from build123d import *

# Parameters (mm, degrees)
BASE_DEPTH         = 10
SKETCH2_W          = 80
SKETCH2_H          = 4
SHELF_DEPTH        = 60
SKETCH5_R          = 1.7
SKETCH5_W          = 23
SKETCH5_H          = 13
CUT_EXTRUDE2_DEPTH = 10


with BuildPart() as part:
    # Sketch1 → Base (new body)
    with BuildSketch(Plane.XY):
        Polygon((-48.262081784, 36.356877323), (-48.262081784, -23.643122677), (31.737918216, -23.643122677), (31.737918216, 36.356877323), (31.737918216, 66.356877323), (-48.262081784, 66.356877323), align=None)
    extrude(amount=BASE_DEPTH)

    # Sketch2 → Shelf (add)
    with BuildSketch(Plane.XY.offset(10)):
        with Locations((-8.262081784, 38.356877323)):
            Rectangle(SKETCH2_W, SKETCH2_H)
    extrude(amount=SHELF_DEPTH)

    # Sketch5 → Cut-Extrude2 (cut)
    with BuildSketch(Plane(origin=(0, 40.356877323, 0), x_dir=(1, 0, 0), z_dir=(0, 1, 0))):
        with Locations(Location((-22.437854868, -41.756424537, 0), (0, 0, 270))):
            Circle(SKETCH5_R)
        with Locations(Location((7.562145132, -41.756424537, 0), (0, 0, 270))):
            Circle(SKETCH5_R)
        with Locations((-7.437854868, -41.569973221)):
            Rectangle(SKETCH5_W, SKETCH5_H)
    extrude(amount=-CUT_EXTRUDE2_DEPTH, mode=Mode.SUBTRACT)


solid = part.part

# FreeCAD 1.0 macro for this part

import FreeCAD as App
import Part
import Sketcher

V = App.Vector
Q = App.Units.Quantity


def add_polygon(sketch, points):
    """Adds a closed chain of lines whose ends are joined by coincident constraints."""
    first, n = sketch.GeometryCount, len(points)
    for a, b in zip(points, points[1:] + points[:1]):
        sketch.addGeometry(Part.LineSegment(App.Vector(*a, 0), App.Vector(*b, 0)), False)
    for i in range(n):
        sketch.addConstraint(Sketcher.Constraint("Coincident", first + i, 2, first + (i + 1) % n, 1))

doc = App.newDocument("Part")
body = doc.addObject("PartDesign::Body", "Body")

# Sketch on XY plane
sketch1 = doc.addObject("Sketcher::SketchObject", "Sketch")
body.addObject(sketch1)
sketch1.AttachmentSupport = (doc.XY_Plane, [""])
sketch1.MapMode = "FlatFace"
add_polygon(sketch1, [(-48, -24), (32, -24), (32, 66), (-48, 66)])  # lines 0-3
sketch1.addConstraint(Sketcher.Constraint("Horizontal", 0))
sketch1.addConstraint(Sketcher.Constraint("Vertical", 1))
sketch1.addConstraint(Sketcher.Constraint("Horizontal", 2))
sketch1.addConstraint(Sketcher.Constraint("Vertical", 3))
sketch1.addConstraint(Sketcher.Constraint("DistanceX", 0, 1, 0, 2, Q("80 mm")))
sketch1.addConstraint(Sketcher.Constraint("DistanceY", 1, 1, 1, 2, Q("90 mm")))
sketch1.addConstraint(Sketcher.Constraint("DistanceX", -1, 1, 0, 2, Q("31.737918 mm")))
sketch1.addConstraint(Sketcher.Constraint("DistanceY", 0, 2, -1, 1, Q("23.643123 mm")))
pad1 = doc.addObject("PartDesign::Pad", "Pad")
body.addObject(pad1)
pad1.Profile = sketch1
pad1.Length = 10

# Sketch on XY plane
sketch2 = doc.addObject("Sketcher::SketchObject", "Sketch001")
body.addObject(sketch2)
sketch2.AttachmentSupport = (doc.XY_Plane, [""])
sketch2.MapMode = "FlatFace"
sketch2.AttachmentOffset = App.Placement(V(0, 0, 10), App.Rotation())
add_polygon(sketch2, [(-48.3, 40.4), (-48.3, 36.4), (31.7, 36.4), (31.7, 40.4)])  # lines 0-3
sketch2.addConstraint(Sketcher.Constraint("Vertical", 0))
sketch2.addConstraint(Sketcher.Constraint("Horizontal", 1))
sketch2.addConstraint(Sketcher.Constraint("Vertical", 2))
sketch2.addConstraint(Sketcher.Constraint("Horizontal", 3))
sketch2.addConstraint(Sketcher.Constraint("DistanceX", 1, 1, 1, 2, Q("80 mm")))
sketch2.addConstraint(Sketcher.Constraint("DistanceY", 0, 2, 0, 1, Q("4 mm")))
sketch2.addConstraint(Sketcher.Constraint("DistanceX", 0, 2, -1, 1, Q("48.262082 mm")))
sketch2.addConstraint(Sketcher.Constraint("DistanceY", -1, 1, 0, 2, Q("36.356877 mm")))
pad2 = doc.addObject("PartDesign::Pad", "Pad001")
body.addObject(pad2)
pad2.Profile = sketch2
pad2.Length = 60

# Sketch on XZ plane
sketch3 = doc.addObject("Sketcher::SketchObject", "Sketch002")
body.addObject(sketch3)
sketch3.AttachmentSupport = (doc.XZ_Plane, [""])
sketch3.MapMode = "FlatFace"
sketch3.AttachmentOffset = App.Placement(V(0, 0, -40.356877), App.Rotation())
sketch3.addGeometry(Part.Circle(V(-22.4, 41.8, 0), V(0, 0, 1), 1.7), False)  # 0
sketch3.addGeometry(Part.Circle(V(7.6, 41.8, 0), V(0, 0, 1), 1.7), False)  # 1
add_polygon(sketch3, [(-18.9, 35.1), (-18.9, 48.1), (4.1, 48.1), (4.1, 35.1)])  # lines 2-5
sketch3.addConstraint(Sketcher.Constraint("Vertical", 2))
sketch3.addConstraint(Sketcher.Constraint("Horizontal", 3))
sketch3.addConstraint(Sketcher.Constraint("Vertical", 4))
sketch3.addConstraint(Sketcher.Constraint("Horizontal", 5))
sketch3.addConstraint(Sketcher.Constraint("Equal", 0, 1))
sketch3.addConstraint(Sketcher.Constraint("Horizontal", 0, 3, 1, 3))
sketch3.addConstraint(Sketcher.Constraint("Diameter", 0, Q("3.4 mm")))
sketch3.addConstraint(Sketcher.Constraint("DistanceX", 3, 1, 3, 2, Q("23 mm")))
sketch3.addConstraint(Sketcher.Constraint("DistanceY", 2, 1, 2, 2, Q("13 mm")))
sketch3.addConstraint(Sketcher.Constraint("DistanceX", 0, 3, 1, 3, Q("30 mm")))
sketch3.addConstraint(Sketcher.Constraint("DistanceX", 0, 3, 2, 2, Q("3.5 mm")))
sketch3.addConstraint(Sketcher.Constraint("DistanceY", 0, 3, 2, 2, Q("6.313549 mm")))
sketch3.addConstraint(Sketcher.Constraint("DistanceX", 0, 3, -1, 1, Q("22.437855 mm")))
sketch3.addConstraint(Sketcher.Constraint("DistanceY", -1, 1, 0, 3, Q("41.756425 mm")))
pocket1 = doc.addObject("PartDesign::Pocket", "Pocket")
body.addObject(pocket1)
pocket1.Profile = sketch3
pocket1.Length = 10
pocket1.Reversed = True

doc.recompute()
